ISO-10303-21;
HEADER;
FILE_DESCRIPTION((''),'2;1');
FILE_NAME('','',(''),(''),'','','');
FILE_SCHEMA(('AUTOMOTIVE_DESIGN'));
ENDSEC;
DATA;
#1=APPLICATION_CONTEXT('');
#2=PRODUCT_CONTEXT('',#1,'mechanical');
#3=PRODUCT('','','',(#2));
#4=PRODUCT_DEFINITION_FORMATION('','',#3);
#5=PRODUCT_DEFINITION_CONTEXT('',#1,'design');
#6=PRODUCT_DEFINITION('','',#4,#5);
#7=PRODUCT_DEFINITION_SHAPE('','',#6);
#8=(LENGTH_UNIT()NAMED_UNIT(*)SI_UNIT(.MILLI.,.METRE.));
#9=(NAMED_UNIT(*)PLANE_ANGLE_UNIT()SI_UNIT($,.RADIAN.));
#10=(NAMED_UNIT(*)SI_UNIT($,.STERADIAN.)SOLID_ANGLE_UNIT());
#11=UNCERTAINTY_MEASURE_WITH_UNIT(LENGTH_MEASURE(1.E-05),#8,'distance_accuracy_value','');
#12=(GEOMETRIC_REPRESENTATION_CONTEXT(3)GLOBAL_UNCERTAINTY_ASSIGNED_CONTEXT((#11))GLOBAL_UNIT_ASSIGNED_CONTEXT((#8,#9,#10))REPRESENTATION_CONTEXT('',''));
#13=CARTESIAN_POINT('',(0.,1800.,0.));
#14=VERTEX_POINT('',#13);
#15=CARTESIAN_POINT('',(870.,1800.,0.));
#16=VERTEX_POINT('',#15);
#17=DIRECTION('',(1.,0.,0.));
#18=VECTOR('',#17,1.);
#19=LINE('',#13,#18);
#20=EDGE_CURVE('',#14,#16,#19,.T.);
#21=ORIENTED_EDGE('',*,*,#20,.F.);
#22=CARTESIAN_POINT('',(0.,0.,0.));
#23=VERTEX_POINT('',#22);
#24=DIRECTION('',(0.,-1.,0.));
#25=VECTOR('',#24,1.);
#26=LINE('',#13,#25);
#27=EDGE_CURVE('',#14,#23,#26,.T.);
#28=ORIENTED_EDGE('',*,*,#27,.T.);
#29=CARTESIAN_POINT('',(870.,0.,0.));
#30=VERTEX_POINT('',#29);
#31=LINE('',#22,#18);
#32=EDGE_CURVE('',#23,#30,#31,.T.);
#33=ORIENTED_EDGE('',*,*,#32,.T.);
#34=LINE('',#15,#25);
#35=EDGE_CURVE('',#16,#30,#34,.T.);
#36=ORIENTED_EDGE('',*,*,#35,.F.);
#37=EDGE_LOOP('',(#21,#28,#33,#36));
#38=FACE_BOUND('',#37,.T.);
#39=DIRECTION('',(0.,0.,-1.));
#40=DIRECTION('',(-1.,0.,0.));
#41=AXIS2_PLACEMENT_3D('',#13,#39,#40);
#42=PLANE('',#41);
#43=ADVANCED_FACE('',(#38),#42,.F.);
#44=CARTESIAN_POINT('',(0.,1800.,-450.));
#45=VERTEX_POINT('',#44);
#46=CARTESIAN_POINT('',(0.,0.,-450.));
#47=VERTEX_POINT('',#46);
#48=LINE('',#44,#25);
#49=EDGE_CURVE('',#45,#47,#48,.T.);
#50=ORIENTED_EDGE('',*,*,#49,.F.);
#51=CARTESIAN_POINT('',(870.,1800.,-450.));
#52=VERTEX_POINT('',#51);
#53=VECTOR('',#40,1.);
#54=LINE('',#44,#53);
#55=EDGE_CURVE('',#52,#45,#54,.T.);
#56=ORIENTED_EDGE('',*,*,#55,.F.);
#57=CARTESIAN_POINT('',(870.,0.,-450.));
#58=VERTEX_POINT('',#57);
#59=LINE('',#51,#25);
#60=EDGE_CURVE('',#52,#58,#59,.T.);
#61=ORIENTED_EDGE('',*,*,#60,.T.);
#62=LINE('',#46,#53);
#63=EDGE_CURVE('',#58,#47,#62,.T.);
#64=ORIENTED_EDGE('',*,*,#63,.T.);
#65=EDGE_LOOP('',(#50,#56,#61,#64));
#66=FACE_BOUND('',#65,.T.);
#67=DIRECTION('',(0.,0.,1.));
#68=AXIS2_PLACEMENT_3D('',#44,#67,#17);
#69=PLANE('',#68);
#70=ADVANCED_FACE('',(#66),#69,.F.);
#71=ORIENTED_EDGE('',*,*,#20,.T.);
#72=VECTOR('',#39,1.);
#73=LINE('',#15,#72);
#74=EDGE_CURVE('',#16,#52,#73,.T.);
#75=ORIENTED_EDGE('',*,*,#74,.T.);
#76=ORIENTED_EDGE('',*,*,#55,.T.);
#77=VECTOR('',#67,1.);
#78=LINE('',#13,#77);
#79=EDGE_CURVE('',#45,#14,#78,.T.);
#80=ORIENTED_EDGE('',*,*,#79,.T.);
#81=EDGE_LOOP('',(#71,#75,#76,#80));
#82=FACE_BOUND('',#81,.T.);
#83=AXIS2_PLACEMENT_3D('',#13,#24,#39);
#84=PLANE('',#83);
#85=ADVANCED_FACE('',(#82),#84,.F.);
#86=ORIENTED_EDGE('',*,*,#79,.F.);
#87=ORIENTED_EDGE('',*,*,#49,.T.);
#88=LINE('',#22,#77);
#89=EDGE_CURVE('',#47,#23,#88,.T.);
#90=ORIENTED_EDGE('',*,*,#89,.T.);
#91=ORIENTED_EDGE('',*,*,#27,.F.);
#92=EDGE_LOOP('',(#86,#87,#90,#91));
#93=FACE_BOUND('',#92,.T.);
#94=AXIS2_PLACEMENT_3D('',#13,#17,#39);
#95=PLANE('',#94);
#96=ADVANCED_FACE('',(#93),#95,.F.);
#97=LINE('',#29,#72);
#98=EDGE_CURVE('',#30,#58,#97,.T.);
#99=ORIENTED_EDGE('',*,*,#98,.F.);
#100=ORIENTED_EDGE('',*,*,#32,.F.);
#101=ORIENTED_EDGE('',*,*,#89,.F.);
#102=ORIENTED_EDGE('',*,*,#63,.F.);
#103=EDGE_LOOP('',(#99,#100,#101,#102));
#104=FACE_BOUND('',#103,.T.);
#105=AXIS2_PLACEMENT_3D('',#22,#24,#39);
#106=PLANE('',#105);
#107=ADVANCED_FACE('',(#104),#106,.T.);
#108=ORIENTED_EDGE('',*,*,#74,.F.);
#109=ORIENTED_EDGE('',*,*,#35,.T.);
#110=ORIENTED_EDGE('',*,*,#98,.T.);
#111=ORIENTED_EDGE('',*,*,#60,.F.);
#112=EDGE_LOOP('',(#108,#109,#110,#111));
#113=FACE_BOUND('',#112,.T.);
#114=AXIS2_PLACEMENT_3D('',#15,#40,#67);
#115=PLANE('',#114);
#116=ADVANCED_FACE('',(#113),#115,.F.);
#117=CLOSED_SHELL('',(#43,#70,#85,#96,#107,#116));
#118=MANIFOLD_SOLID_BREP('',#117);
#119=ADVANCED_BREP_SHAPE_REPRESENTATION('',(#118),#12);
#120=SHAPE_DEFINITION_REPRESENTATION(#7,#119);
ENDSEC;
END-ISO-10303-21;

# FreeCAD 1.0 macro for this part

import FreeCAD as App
import Part
import Sketcher

V = App.Vector


def add_polygon(sketch, points):
    """Adds a closed chain of lines whose ends are joined by coincident constraints."""
    first, n = sketch.GeometryCount, len(points)
    for a, b in zip(points, points[1:] + points[:1]):
        sketch.addGeometry(Part.LineSegment(App.Vector(*a, 0), App.Vector(*b, 0)), False)
    for i in range(n):
        sketch.addConstraint(Sketcher.Constraint("Coincident", first + i, 2, first + (i + 1) % n, 1))

doc = App.newDocument("Part")
body = doc.addObject("PartDesign::Body", "Body")

sketch1 = doc.addObject("Sketcher::SketchObject", "Sketch")
body.addObject(sketch1)
sketch1.AttachmentSupport = (doc.XZ_Plane, [""])
sketch1.MapMode = "FlatFace"
add_polygon(sketch1, [(0, -450), (0, 0), (870, 0), (870, -450)])
sketch1.addConstraint(Sketcher.Constraint("Vertical", 0))
sketch1.addConstraint(Sketcher.Constraint("Horizontal", 1))
sketch1.addConstraint(Sketcher.Constraint("Vertical", 2))
sketch1.addConstraint(Sketcher.Constraint("Horizontal", 3))
sketch1.addConstraint(Sketcher.Constraint("Coincident", 0, 2, -1, 1))
sketch1.addConstraint(Sketcher.Constraint("DistanceX", 1, 1, 1, 2, 870.0))
sketch1.addConstraint(Sketcher.Constraint("DistanceY", 0, 1, 0, 2, 450.0))
pad1 = doc.addObject("PartDesign::Pad", "Pad")
body.addObject(pad1)
pad1.Profile = sketch1
pad1.Length = 1800
pad1.Reversed = True

doc.recompute()
